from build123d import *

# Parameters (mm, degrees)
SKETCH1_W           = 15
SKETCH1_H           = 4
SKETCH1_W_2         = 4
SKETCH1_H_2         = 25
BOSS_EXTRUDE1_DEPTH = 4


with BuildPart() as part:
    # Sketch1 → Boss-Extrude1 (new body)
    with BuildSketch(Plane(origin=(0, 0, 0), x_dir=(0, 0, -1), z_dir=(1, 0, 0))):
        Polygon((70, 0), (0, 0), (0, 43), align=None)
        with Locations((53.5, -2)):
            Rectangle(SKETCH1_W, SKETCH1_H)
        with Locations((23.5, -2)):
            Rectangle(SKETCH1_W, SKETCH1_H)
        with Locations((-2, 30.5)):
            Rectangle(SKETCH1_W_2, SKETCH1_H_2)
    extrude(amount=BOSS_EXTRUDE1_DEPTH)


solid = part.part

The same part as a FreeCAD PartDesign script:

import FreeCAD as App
import Part
import Sketcher
Q = App.Units.Quantity

doc = App.newDocument("Part")
body = doc.addObject("PartDesign::Body", "Body")

sketch1 = doc.addObject("Sketcher::SketchObject", "Sketch")
body.addObject(sketch1)
sketch1.AttachmentSupport = (doc.YZ_Plane, [""])
sketch1.MapMode = "FlatFace"
sketch1.addGeometry([
    Part.LineSegment(App.Vector(0, -61, 0), App.Vector(0, -70, 0)),
    Part.LineSegment(App.Vector(0, -70, 0), App.Vector(43, 0, 0)),
    Part.LineSegment(App.Vector(43, 0, 0), App.Vector(43, 4, 0)),
    Part.LineSegment(App.Vector(43, 4, 0), App.Vector(18, 4, 0)),
    Part.LineSegment(App.Vector(18, 4, 0), App.Vector(18, 0, 0)),
    Part.LineSegment(App.Vector(18, 0, 0), App.Vector(0, 0, 0)),
    Part.LineSegment(App.Vector(0, 0, 0), App.Vector(0, -16, 0)),
    Part.LineSegment(App.Vector(0, -16, 0), App.Vector(-4, -16, 0)),
    Part.LineSegment(App.Vector(-4, -16, 0), App.Vector(-4, -31, 0)),
    Part.LineSegment(App.Vector(-4, -31, 0), App.Vector(0, -31, 0)),
    Part.LineSegment(App.Vector(0, -31, 0), App.Vector(0, -46, 0)),
    Part.LineSegment(App.Vector(0, -46, 0), App.Vector(-4, -46, 0)),
    Part.LineSegment(App.Vector(-4, -46, 0), App.Vector(-4, -61, 0)),
    Part.LineSegment(App.Vector(-4, -61, 0), App.Vector(0, -61, 0)),
], False)
sketch1.addConstraint([
    Sketcher.Constraint("Coincident", 0, 2, 1, 1),
    Sketcher.Constraint("Coincident", 1, 2, 2, 1),
    Sketcher.Constraint("Coincident", 2, 2, 3, 1),
    Sketcher.Constraint("Coincident", 3, 2, 4, 1),
    Sketcher.Constraint("Coincident", 4, 2, 5, 1),
    Sketcher.Constraint("Coincident", 5, 2, 6, 1),
    Sketcher.Constraint("Coincident", 6, 2, 7, 1),
    Sketcher.Constraint("Coincident", 7, 2, 8, 1),
    Sketcher.Constraint("Coincident", 8, 2, 9, 1),
    Sketcher.Constraint("Coincident", 9, 2, 10, 1),
    Sketcher.Constraint("Coincident", 10, 2, 11, 1),
    Sketcher.Constraint("Coincident", 11, 2, 12, 1),
    Sketcher.Constraint("Coincident", 12, 2, 13, 1),
    Sketcher.Constraint("Coincident", 13, 2, 0, 1),
    Sketcher.Constraint("Vertical", 0),
    Sketcher.Constraint("Vertical", 2),
    Sketcher.Constraint("Horizontal", 3),
    Sketcher.Constraint("Vertical", 4),
    Sketcher.Constraint("Horizontal", 5),
    Sketcher.Constraint("Vertical", 6),
    Sketcher.Constraint("Horizontal", 7),
    Sketcher.Constraint("Vertical", 8),
    Sketcher.Constraint("Horizontal", 9),
    Sketcher.Constraint("Vertical", 10),
    Sketcher.Constraint("Horizontal", 11),
    Sketcher.Constraint("Vertical", 12),
    Sketcher.Constraint("Horizontal", 13),
    Sketcher.Constraint("Coincident", 5, 2, -1, 1),
    Sketcher.Constraint("PointOnObject", 0, 2, -2),
    Sketcher.Constraint("PointOnObject", 1, 2, -1),
    Sketcher.Constraint("PointOnObject", 9, 2, -2),
    Sketcher.Constraint("Vertical", 8, 2, 11, 2),
    Sketcher.Constraint("Equal", 13, 2),
    Sketcher.Constraint("Equal", 8, 10),
    Sketcher.Constraint("Equal", 10, 12),
    Sketcher.Constraint("DistanceX", 3, 2, 3, 1, Q("25 mm")),
    Sketcher.Constraint("DistanceX", 5, 2, 5, 1, Q("18 mm")),
    Sketcher.Constraint("DistanceX", 7, 2, 7, 1, Q("4 mm")),
    Sketcher.Constraint("DistanceY", 0, 2, 0, 1, Q("9 mm")),
    Sketcher.Constraint("DistanceY", 6, 2, 6, 1, Q("16 mm")),
    Sketcher.Constraint("DistanceY", 8, 2, 8, 1, Q("15 mm")),
])
pad1 = doc.addObject("PartDesign::Pad", "Pad")
body.addObject(pad1)
pad1.Profile = sketch1
pad1.Length = 4

doc.recompute()
